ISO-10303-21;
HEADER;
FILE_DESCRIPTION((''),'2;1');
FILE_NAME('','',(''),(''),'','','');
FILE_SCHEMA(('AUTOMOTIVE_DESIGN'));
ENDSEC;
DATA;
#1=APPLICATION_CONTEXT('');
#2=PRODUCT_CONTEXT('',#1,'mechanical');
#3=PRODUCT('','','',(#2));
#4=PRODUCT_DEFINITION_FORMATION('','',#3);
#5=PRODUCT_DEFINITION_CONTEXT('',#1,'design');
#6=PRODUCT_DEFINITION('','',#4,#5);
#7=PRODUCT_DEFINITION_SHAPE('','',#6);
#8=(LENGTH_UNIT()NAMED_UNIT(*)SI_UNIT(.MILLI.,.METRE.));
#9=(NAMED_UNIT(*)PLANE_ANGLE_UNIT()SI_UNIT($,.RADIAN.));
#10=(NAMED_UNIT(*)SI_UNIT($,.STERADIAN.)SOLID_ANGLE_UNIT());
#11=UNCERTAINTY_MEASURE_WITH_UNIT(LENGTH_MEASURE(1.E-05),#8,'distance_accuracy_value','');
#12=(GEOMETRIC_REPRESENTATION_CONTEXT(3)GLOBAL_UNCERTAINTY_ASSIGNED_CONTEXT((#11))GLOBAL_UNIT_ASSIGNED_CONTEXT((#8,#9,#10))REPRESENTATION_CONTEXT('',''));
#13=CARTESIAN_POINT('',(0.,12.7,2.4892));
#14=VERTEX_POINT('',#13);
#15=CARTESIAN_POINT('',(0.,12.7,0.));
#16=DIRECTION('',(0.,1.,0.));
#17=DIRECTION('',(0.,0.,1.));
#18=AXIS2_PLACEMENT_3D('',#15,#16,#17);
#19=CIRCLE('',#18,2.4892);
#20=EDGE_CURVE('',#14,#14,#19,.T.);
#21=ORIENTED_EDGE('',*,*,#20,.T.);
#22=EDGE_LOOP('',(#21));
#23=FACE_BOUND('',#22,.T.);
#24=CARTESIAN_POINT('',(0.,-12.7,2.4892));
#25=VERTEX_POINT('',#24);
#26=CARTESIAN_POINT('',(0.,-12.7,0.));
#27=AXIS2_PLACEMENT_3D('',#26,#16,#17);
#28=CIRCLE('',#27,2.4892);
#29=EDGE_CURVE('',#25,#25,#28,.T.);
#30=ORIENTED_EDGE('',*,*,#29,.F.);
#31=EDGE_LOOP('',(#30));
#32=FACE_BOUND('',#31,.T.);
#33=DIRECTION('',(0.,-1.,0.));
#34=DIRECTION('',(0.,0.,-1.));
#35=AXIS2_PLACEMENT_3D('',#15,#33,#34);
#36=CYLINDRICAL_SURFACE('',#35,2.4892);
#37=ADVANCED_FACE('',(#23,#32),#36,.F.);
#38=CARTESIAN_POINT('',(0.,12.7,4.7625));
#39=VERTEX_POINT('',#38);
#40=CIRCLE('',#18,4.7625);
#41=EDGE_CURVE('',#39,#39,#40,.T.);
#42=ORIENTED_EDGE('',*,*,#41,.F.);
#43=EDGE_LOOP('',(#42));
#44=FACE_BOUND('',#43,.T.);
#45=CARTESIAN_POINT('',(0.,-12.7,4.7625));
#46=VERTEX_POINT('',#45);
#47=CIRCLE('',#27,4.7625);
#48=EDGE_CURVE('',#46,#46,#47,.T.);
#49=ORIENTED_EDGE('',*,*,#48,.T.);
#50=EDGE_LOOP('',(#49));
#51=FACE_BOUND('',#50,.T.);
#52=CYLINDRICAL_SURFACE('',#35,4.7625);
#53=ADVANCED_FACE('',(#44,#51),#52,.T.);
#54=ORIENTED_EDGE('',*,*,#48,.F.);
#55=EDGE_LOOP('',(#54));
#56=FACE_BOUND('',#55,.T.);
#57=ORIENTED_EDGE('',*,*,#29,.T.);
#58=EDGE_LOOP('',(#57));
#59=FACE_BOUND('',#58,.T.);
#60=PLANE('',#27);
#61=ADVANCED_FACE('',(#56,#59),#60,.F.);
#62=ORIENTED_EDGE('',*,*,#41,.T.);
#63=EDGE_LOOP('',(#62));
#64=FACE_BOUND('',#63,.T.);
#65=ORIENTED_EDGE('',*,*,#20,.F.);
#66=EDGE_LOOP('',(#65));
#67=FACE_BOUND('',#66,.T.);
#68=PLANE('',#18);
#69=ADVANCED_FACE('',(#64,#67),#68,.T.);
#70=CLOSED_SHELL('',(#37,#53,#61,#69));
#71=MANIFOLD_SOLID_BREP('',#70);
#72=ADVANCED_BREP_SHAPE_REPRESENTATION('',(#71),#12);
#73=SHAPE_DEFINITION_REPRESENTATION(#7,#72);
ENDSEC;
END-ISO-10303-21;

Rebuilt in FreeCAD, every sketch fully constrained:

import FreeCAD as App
import Part
import Sketcher
Q = App.Units.Quantity

doc = App.newDocument("Part")
body = doc.addObject("PartDesign::Body", "Body")

# Sketch on XZ plane
sketch1 = doc.addObject("Sketcher::SketchObject", "Sketch")
body.addObject(sketch1)
sketch1.AttachmentSupport = (doc.XZ_Plane, [""])
sketch1.MapMode = "FlatFace"
sketch1.addGeometry([
    Part.Circle(App.Vector(0, 0, 0), App.Vector(0, 0, 1), 4.8),
    Part.Circle(App.Vector(0, 0, 0), App.Vector(0, 0, 1), 2.5),
], False)
sketch1.addConstraint([
    Sketcher.Constraint("Coincident", 0, 3, -1, 1),
    Sketcher.Constraint("Coincident", 1, 3, -1, 1),
    Sketcher.Constraint("Diameter", 0, Q("0.375 in")),
    Sketcher.Constraint("Diameter", 1, Q("0.196 in")),
])
pad1 = doc.addObject("PartDesign::Pad", "Pad")
body.addObject(pad1)
pad1.Profile = sketch1
pad1.Length = Q("1 in")
pad1.Midplane = True

doc.recompute()
